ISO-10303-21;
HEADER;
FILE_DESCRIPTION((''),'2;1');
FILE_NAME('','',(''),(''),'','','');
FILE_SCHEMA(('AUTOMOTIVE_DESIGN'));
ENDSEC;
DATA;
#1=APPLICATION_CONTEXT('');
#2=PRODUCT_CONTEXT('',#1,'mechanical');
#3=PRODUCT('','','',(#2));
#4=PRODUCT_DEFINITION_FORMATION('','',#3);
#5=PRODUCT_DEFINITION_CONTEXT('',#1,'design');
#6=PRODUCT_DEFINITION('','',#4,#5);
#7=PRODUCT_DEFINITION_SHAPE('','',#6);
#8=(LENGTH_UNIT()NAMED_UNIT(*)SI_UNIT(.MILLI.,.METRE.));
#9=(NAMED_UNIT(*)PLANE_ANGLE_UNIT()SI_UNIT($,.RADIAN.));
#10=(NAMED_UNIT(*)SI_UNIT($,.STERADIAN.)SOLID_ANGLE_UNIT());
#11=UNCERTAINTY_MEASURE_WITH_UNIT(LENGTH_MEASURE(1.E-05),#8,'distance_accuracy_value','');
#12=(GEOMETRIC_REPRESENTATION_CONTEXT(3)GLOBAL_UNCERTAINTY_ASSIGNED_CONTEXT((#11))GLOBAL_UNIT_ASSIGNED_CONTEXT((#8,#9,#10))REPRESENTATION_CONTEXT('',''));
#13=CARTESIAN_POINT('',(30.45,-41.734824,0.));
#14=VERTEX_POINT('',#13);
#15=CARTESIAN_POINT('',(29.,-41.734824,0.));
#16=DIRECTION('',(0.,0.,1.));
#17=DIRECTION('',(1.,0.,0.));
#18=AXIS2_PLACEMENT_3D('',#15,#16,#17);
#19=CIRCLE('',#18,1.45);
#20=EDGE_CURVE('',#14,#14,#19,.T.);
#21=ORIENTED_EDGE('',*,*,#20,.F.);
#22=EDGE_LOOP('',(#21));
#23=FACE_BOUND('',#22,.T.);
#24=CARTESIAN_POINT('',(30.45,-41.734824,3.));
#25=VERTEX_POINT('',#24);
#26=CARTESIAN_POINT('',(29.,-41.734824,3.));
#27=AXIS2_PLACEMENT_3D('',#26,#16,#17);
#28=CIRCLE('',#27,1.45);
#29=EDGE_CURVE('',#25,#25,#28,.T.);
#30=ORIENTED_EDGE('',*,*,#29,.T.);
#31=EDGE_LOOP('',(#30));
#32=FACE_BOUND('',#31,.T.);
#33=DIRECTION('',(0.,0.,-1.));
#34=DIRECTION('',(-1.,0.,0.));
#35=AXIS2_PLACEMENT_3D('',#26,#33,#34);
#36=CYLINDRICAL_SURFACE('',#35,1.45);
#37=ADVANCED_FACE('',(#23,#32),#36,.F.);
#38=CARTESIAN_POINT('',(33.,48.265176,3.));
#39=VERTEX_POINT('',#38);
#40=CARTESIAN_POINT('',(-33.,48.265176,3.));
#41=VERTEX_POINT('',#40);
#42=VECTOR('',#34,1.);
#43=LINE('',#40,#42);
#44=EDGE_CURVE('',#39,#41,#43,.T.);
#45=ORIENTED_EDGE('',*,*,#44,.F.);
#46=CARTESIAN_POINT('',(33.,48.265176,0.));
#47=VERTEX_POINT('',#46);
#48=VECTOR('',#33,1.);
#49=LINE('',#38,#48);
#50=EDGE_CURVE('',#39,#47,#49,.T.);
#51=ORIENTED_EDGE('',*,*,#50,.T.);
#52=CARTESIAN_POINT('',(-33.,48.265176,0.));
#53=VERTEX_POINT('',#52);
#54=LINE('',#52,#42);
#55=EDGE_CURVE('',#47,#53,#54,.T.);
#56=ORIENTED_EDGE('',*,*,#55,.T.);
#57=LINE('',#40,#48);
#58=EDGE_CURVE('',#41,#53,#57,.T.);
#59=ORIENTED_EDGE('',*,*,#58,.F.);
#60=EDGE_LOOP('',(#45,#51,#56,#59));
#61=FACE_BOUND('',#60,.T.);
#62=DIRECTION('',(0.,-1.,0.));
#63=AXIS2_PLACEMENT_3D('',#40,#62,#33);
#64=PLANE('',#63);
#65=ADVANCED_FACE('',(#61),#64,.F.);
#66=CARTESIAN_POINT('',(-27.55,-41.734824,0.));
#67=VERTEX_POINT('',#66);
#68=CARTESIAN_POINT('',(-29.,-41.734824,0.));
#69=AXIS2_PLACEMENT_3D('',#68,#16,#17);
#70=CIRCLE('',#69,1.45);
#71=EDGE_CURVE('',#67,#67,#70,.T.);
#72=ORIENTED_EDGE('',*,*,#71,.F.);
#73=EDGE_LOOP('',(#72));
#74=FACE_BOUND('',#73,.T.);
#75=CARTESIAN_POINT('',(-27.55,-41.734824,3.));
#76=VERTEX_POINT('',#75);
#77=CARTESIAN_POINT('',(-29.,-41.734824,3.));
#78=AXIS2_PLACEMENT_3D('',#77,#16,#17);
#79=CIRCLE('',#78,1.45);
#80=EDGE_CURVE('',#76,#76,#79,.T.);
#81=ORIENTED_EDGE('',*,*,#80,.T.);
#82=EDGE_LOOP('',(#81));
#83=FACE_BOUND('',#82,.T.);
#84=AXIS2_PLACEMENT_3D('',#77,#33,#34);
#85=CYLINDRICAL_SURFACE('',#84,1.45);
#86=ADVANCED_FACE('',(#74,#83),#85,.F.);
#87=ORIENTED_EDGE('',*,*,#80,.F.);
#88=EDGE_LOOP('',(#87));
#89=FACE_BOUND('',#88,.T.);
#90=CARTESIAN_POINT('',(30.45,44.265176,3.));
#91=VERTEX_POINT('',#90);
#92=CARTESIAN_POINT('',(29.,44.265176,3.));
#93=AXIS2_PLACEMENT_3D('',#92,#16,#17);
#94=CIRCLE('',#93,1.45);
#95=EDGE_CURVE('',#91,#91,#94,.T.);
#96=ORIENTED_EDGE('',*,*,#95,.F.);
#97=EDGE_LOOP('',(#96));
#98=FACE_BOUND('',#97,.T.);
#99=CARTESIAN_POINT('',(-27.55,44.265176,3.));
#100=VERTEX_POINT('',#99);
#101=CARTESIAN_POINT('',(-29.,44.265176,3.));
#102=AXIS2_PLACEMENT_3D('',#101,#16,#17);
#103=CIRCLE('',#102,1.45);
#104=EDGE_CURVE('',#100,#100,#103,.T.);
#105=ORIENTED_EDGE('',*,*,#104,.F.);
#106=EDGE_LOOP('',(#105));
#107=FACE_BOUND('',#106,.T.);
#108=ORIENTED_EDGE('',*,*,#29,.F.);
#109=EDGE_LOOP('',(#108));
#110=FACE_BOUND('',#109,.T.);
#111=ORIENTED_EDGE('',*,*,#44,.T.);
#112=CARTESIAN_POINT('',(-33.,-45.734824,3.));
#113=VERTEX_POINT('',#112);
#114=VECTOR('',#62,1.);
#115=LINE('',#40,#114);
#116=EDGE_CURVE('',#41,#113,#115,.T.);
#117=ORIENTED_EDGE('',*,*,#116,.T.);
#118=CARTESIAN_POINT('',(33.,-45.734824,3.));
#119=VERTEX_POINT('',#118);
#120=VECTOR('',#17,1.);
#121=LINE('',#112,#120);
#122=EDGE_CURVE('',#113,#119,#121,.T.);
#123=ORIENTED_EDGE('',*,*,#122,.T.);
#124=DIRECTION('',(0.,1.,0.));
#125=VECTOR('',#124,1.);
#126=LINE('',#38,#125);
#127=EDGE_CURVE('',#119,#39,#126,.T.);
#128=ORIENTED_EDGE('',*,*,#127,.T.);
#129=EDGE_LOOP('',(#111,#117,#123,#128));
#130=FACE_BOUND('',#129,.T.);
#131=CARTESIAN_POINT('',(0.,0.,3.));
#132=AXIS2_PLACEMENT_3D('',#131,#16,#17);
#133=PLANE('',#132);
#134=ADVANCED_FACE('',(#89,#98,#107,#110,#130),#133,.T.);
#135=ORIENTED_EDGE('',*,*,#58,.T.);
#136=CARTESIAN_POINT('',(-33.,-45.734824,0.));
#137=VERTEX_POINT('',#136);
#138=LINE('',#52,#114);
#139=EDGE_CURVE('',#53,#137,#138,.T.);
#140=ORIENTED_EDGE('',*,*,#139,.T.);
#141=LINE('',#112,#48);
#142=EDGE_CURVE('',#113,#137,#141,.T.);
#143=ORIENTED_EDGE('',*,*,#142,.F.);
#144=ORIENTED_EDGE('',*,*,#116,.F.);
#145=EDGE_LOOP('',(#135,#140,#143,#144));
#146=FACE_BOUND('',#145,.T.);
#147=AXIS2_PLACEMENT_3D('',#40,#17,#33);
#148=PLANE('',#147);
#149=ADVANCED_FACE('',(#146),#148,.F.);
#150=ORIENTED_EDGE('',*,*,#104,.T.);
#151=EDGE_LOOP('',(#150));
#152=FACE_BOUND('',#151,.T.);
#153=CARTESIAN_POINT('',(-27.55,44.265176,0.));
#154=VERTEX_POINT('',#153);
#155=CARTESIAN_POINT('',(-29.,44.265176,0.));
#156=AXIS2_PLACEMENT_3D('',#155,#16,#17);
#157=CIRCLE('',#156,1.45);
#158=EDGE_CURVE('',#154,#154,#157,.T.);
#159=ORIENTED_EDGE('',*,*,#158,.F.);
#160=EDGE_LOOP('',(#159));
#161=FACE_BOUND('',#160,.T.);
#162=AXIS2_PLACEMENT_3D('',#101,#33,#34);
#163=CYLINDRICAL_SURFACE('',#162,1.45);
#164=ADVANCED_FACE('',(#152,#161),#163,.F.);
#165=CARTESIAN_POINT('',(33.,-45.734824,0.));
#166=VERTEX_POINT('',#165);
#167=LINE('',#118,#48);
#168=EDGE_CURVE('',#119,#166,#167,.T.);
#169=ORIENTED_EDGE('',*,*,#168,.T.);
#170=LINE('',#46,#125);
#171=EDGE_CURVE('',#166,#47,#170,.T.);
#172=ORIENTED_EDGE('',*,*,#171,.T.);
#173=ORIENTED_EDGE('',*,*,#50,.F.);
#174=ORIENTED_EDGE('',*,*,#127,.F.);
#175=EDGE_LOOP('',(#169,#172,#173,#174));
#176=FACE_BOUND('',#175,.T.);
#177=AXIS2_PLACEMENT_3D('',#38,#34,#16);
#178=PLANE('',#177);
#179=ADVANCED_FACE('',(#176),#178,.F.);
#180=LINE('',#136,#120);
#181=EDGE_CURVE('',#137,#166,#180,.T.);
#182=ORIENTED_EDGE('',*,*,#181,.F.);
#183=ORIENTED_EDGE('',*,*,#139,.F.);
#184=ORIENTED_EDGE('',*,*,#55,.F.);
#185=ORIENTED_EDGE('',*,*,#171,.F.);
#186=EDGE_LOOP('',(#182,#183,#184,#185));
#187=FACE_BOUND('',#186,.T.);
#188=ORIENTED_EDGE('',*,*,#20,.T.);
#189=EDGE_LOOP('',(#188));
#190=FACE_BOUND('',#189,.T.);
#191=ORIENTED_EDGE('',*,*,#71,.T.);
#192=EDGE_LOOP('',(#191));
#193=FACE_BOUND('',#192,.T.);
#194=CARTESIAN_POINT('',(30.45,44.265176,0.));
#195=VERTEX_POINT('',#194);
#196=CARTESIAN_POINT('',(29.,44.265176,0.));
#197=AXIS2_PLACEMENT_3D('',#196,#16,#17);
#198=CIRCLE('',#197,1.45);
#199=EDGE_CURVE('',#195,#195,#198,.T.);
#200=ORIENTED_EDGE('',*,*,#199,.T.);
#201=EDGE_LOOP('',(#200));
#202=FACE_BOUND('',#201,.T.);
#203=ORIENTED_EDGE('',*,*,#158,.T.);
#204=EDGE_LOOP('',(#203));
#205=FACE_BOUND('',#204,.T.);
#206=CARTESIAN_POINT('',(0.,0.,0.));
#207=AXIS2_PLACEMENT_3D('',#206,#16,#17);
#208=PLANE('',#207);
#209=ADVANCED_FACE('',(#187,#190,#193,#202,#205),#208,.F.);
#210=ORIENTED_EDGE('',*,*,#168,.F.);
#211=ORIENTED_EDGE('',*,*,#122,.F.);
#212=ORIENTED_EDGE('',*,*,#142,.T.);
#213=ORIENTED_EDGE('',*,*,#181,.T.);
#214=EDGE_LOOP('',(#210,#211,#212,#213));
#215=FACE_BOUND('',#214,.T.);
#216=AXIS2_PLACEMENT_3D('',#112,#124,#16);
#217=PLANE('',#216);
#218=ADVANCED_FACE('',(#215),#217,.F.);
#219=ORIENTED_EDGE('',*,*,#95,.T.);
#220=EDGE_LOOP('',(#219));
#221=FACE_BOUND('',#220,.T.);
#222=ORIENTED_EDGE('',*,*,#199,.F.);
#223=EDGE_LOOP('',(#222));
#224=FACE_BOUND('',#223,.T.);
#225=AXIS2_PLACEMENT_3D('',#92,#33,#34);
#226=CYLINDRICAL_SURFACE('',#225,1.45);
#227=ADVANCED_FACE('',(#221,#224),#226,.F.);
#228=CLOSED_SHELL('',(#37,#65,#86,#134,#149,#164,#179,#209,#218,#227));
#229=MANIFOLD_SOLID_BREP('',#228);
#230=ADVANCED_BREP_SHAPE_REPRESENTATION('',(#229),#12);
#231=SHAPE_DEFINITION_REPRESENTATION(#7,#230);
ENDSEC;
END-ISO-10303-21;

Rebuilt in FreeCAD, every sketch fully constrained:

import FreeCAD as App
import Part
import Sketcher
from FreeCAD import Vector
Q = App.Units.Quantity

doc = App.newDocument("Part")
body = doc.addObject("PartDesign::Body", "Body")

# Sketch on XY plane
sketch1 = doc.addObject("Sketcher::SketchObject", "Sketch")
body.addObject(sketch1)
sketch1.AttachmentSupport = (doc.XY_Plane, [""])
sketch1.MapMode = "FlatFace"
sketch1.addGeometry([
    Part.LineSegment(Vector(-33, 48.265176, 0), Vector(-33, -45.734824, 0)),  # 0
    Part.LineSegment(Vector(-33, -45.734824, 0), Vector(33, -45.734824, 0)),  # 1
    Part.LineSegment(Vector(33, -45.734824, 0), Vector(33, 48.265176, 0)),  # 2
    Part.LineSegment(Vector(33, 48.265176, 0), Vector(-33, 48.265176, 0)),  # 3
    Part.Circle(Vector(-29, -41.734824, 0), Vector(0, 0, 1), 1.45),  # 4
    Part.Circle(Vector(29, -41.734824, 0), Vector(0, 0, 1), 1.45),  # 5
    Part.Circle(Vector(-29, 44.265176, 0), Vector(0, 0, 1), 1.45),  # 6
    Part.Circle(Vector(29, 44.265176, 0), Vector(0, 0, 1), 1.45),  # 7
], False)
sketch1.addConstraint([
    Sketcher.Constraint("Coincident", 0, 2, 1, 1),
    Sketcher.Constraint("Coincident", 1, 2, 2, 1),
    Sketcher.Constraint("Coincident", 2, 2, 3, 1),
    Sketcher.Constraint("Coincident", 3, 2, 0, 1),
    Sketcher.Constraint("Vertical", 0),
    Sketcher.Constraint("Horizontal", 1),
    Sketcher.Constraint("Vertical", 2),
    Sketcher.Constraint("Horizontal", 3),
    Sketcher.Constraint("Equal", 4, 5),
    Sketcher.Constraint("Equal", 5, 6),
    Sketcher.Constraint("Equal", 6, 7),
    Sketcher.Constraint("Symmetric", 4, 3, 5, 3, -2),
    Sketcher.Constraint("Symmetric", 6, 3, 7, 3, -2),
    Sketcher.Constraint("Vertical", 4, 3, 6, 3),
    Sketcher.Constraint("Diameter", 4, Q("2.9 mm")),
    Sketcher.Constraint("DistanceX", 1, 1, 1, 2, Q("66 mm")),
    Sketcher.Constraint("DistanceY", 0, 2, 0, 1, Q("94 mm")),
    Sketcher.Constraint("DistanceX", 4, 3, -1, 1, Q("29 mm")),
    Sketcher.Constraint("DistanceX", 0, 2, -1, 1, Q("33 mm")),
    Sketcher.Constraint("DistanceY", 4, 3, 6, 3, Q("86 mm")),
    Sketcher.Constraint("DistanceY", 0, 2, 4, 3, Q("4 mm")),
    Sketcher.Constraint("DistanceY", 4, 3, -1, 1, Q("41.734824 mm")),
])
pad1 = doc.addObject("PartDesign::Pad", "Pad")
body.addObject(pad1)
pad1.Profile = sketch1
pad1.Length = 3

doc.recompute()
